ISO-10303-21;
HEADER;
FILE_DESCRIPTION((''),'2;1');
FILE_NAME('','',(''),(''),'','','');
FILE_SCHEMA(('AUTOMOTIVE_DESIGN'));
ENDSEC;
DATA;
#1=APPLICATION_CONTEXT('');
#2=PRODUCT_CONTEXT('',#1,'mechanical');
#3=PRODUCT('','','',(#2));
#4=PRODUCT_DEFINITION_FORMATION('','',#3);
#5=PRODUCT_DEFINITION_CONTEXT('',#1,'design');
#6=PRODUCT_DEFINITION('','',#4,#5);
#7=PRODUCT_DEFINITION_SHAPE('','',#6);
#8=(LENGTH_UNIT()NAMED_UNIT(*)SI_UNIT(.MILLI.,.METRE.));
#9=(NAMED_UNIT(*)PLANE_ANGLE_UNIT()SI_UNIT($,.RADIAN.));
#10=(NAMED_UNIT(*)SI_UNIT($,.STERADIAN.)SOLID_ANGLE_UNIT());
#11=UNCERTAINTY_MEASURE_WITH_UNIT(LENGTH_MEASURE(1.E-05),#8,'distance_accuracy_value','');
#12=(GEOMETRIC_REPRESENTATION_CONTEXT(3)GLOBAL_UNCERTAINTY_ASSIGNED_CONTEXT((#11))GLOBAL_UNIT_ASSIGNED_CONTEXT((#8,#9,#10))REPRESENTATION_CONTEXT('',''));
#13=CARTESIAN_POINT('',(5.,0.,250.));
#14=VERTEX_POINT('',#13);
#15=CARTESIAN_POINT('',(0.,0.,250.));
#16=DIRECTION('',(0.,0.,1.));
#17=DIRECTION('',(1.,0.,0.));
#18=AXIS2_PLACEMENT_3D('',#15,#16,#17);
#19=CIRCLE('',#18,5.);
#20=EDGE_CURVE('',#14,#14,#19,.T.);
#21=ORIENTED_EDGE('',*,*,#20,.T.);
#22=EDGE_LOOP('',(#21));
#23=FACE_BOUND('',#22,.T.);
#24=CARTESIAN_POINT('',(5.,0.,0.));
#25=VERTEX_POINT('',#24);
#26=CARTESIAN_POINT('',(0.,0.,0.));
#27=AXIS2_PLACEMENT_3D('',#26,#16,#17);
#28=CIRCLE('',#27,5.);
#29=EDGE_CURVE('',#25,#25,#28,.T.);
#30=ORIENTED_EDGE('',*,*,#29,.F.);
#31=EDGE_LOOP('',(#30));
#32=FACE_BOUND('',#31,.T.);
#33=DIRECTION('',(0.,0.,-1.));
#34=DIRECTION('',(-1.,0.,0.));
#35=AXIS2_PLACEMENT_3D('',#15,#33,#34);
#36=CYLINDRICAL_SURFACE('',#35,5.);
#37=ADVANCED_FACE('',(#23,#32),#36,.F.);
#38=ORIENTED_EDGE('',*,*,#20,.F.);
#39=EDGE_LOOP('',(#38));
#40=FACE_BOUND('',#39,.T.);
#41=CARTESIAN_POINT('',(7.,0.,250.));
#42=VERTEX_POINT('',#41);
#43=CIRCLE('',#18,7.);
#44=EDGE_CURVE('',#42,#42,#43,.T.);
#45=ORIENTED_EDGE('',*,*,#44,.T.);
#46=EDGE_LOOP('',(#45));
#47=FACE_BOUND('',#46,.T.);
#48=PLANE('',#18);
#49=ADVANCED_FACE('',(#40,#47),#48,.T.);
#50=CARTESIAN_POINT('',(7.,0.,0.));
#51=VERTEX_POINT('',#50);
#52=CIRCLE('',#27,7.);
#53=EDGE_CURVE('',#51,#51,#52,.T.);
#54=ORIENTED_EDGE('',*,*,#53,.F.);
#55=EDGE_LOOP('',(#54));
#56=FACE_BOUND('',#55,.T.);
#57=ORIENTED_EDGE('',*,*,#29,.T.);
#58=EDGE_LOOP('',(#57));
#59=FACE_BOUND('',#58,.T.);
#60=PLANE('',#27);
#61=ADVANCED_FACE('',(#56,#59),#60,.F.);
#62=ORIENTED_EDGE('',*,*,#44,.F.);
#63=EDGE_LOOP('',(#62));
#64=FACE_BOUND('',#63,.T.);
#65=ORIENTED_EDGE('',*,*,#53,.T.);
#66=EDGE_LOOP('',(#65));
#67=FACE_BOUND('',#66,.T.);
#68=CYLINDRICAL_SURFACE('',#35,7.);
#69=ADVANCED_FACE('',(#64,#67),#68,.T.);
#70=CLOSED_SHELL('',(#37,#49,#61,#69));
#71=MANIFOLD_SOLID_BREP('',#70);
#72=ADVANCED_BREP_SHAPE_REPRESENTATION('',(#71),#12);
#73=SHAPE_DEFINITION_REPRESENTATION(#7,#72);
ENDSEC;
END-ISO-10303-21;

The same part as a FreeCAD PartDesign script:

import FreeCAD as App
import Part
import Sketcher
from FreeCAD import Vector
Q = App.Units.Quantity

doc = App.newDocument("Part")
params = doc.addObject("Spreadsheet::Sheet", "Params")
for row, (alias, value) in enumerate([
    ("sketch1_diameter", "14 mm"),
    ("sketch1_diameter2", "10 mm"),
    ("pad1_length", "250 mm"),
], start=1):
    params.set(f"A{row}", alias)
    params.set(f"B{row}", "=" + value)
    params.setAlias(f"B{row}", alias)

body = doc.addObject("PartDesign::Body", "Body")

# Sketch on XY plane
sketch1 = body.newObject("Sketcher::SketchObject", "Sketch")
sketch1.AttachmentSupport = (doc.getObject("XY_Plane"), [""])
sketch1.MapMode = "FlatFace"
sketch1.addGeometry([
    Part.Circle(Vector(0, 0, 0), Vector(0, 0, 1), 7),
    Part.Circle(Vector(0, 0, 0), Vector(0, 0, 1), 5),
], False)
sketch1.addConstraint([
    Sketcher.Constraint("Coincident", 0, 3, -1, 1),
    Sketcher.Constraint("Coincident", 1, 3, -1, 1),
    Sketcher.Constraint("Diameter", 0, Q("14 mm")),
    Sketcher.Constraint("Diameter", 1, Q("10 mm")),
])
sketch1.setExpression("Constraints[2]", "Params.sketch1_diameter")
sketch1.setExpression("Constraints[3]", "Params.sketch1_diameter2")
pad1 = body.newObject("PartDesign::Pad", "Pad")
pad1.Profile = sketch1
pad1.setExpression("Length", "Params.pad1_length")

doc.recompute()
